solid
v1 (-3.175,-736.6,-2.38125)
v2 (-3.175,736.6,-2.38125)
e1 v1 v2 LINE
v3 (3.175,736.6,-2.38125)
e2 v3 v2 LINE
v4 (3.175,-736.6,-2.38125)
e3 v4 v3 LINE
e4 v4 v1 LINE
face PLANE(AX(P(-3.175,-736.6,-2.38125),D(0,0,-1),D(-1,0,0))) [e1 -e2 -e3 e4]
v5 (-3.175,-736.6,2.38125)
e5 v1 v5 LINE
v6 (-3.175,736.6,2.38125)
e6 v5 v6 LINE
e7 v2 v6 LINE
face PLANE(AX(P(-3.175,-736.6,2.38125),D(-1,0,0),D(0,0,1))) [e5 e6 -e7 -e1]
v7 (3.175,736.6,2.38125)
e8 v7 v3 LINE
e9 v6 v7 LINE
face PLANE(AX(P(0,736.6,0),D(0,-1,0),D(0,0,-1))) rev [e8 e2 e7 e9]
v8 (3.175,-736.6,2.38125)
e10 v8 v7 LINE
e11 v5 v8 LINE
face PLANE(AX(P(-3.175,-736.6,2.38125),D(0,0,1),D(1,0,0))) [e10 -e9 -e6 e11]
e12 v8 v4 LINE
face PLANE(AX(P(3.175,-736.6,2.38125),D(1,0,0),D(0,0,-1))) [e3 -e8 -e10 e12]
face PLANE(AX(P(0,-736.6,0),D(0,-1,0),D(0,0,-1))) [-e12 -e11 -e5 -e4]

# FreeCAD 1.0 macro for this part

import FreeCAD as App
import Part
import Sketcher
Q = App.Units.Quantity

doc = App.newDocument("Part")
params = doc.addObject("Spreadsheet::Sheet", "Params")
for row, (alias, value) in enumerate([
    ("sketch1_width", "0.25 in"),
    ("sketch1_height", "0.1875 in"),
    ("pad1_length", "29 in"),
    ("pad1_length2", "29 in"),
], start=1):
    params.set(f"A{row}", alias)
    params.set(f"B{row}", "=" + value)
    params.setAlias(f"B{row}", alias)

body = doc.addObject("PartDesign::Body", "Body")

# Sketch on XZ plane
sketch1 = body.newObject("Sketcher::SketchObject", "Sketch")
sketch1.AttachmentSupport = (doc.getObject("XZ_Plane"), [""])
sketch1.MapMode = "FlatFace"
sketch1.addGeometry(Part.LineSegment(App.Vector(-3.2, -2.4, 0), App.Vector(-3.2, 2.4, 0)), False)
sketch1.addGeometry(Part.LineSegment(App.Vector(-3.2, 2.4, 0), App.Vector(3.2, 2.4, 0)), False)
sketch1.addGeometry(Part.LineSegment(App.Vector(3.2, 2.4, 0), App.Vector(3.2, -2.4, 0)), False)
sketch1.addGeometry(Part.LineSegment(App.Vector(3.2, -2.4, 0), App.Vector(-3.2, -2.4, 0)), False)
sketch1.addConstraint(Sketcher.Constraint("Coincident", 0, 2, 1, 1))
sketch1.addConstraint(Sketcher.Constraint("Coincident", 1, 2, 2, 1))
sketch1.addConstraint(Sketcher.Constraint("Coincident", 2, 2, 3, 1))
sketch1.addConstraint(Sketcher.Constraint("Coincident", 3, 2, 0, 1))
sketch1.addConstraint(Sketcher.Constraint("Vertical", 0))
sketch1.addConstraint(Sketcher.Constraint("Horizontal", 1))
sketch1.addConstraint(Sketcher.Constraint("Vertical", 2))
sketch1.addConstraint(Sketcher.Constraint("Horizontal", 3))
sketch1.addConstraint(Sketcher.Constraint("Symmetric", 0, 2, 2, 2, -1, 1))
sketch1.addConstraint(Sketcher.Constraint("DistanceX", 1, 1, 1, 2, Q("0.25 in")))
sketch1.addConstraint(Sketcher.Constraint("DistanceY", 0, 1, 0, 2, Q("0.1875 in")))
sketch1.setExpression("Constraints[9]", "Params.sketch1_width")
sketch1.setExpression("Constraints[10]", "Params.sketch1_height")
pad1 = body.newObject("PartDesign::Pad", "Pad")
pad1.Profile = sketch1
pad1.Type = "TwoLengths"
pad1.setExpression("Length", "Params.pad1_length")
pad1.setExpression("Length2", "Params.pad1_length2")
pad1.Reversed = True

doc.recompute()
